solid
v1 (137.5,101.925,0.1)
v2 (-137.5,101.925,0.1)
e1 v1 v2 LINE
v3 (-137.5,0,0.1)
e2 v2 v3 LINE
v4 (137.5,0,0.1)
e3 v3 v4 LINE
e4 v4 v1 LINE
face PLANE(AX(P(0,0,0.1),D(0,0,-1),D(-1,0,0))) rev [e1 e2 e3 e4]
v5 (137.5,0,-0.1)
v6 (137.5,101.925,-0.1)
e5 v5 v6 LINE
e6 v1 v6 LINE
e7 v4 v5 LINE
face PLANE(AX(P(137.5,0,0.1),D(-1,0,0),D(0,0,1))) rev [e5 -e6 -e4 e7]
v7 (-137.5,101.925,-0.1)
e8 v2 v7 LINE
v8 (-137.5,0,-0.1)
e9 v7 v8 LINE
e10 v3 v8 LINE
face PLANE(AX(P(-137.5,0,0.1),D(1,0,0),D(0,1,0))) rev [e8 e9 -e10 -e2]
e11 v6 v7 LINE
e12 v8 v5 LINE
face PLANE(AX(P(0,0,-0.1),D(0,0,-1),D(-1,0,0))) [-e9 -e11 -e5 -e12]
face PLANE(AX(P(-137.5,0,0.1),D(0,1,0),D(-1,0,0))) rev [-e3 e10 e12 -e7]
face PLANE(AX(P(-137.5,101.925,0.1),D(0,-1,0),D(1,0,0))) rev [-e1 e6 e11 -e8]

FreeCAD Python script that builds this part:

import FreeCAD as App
import Part
import Sketcher
from FreeCAD import Vector
Q = App.Units.Quantity


def add_polygon(sketch, points):
    """Adds a closed chain of lines whose ends are joined by coincident constraints."""
    first, n = sketch.GeometryCount, len(points)
    for a, b in zip(points, points[1:] + points[:1]):
        sketch.addGeometry(Part.LineSegment(App.Vector(*a, 0), App.Vector(*b, 0)), False)
    for i in range(n):
        sketch.addConstraint(Sketcher.Constraint("Coincident", first + i, 2, first + (i + 1) % n, 1))

doc = App.newDocument("Part")
body = doc.addObject("PartDesign::Body", "Body")

# Sketch on XY plane
sketch1 = body.newObject("Sketcher::SketchObject", "Sketch")
sketch1.AttachmentSupport = (doc.getObject("XY_Plane"), [""])
sketch1.MapMode = "FlatFace"
add_polygon(sketch1, [(-138, 102), (-138, 0), (138, 0), (138, 102)])  # lines 0-3
sketch1.addConstraint(Sketcher.Constraint("Vertical", 0))
sketch1.addConstraint(Sketcher.Constraint("Horizontal", 1))
sketch1.addConstraint(Sketcher.Constraint("Vertical", 2))
sketch1.addConstraint(Sketcher.Constraint("Horizontal", 3))
sketch1.addConstraint(Sketcher.Constraint("Symmetric", 0, 2, 1, 2, -1, 1))
sketch1.addConstraint(Sketcher.Constraint("DistanceX", 1, 1, 1, 2, Q("275 mm")))
sketch1.addConstraint(Sketcher.Constraint("DistanceY", 0, 2, 0, 1, Q("101.925 mm")))
pad1 = body.newObject("PartDesign::Pad", "Pad")
pad1.Profile = sketch1
pad1.Length = 0.2
pad1.Midplane = True

doc.recompute()
